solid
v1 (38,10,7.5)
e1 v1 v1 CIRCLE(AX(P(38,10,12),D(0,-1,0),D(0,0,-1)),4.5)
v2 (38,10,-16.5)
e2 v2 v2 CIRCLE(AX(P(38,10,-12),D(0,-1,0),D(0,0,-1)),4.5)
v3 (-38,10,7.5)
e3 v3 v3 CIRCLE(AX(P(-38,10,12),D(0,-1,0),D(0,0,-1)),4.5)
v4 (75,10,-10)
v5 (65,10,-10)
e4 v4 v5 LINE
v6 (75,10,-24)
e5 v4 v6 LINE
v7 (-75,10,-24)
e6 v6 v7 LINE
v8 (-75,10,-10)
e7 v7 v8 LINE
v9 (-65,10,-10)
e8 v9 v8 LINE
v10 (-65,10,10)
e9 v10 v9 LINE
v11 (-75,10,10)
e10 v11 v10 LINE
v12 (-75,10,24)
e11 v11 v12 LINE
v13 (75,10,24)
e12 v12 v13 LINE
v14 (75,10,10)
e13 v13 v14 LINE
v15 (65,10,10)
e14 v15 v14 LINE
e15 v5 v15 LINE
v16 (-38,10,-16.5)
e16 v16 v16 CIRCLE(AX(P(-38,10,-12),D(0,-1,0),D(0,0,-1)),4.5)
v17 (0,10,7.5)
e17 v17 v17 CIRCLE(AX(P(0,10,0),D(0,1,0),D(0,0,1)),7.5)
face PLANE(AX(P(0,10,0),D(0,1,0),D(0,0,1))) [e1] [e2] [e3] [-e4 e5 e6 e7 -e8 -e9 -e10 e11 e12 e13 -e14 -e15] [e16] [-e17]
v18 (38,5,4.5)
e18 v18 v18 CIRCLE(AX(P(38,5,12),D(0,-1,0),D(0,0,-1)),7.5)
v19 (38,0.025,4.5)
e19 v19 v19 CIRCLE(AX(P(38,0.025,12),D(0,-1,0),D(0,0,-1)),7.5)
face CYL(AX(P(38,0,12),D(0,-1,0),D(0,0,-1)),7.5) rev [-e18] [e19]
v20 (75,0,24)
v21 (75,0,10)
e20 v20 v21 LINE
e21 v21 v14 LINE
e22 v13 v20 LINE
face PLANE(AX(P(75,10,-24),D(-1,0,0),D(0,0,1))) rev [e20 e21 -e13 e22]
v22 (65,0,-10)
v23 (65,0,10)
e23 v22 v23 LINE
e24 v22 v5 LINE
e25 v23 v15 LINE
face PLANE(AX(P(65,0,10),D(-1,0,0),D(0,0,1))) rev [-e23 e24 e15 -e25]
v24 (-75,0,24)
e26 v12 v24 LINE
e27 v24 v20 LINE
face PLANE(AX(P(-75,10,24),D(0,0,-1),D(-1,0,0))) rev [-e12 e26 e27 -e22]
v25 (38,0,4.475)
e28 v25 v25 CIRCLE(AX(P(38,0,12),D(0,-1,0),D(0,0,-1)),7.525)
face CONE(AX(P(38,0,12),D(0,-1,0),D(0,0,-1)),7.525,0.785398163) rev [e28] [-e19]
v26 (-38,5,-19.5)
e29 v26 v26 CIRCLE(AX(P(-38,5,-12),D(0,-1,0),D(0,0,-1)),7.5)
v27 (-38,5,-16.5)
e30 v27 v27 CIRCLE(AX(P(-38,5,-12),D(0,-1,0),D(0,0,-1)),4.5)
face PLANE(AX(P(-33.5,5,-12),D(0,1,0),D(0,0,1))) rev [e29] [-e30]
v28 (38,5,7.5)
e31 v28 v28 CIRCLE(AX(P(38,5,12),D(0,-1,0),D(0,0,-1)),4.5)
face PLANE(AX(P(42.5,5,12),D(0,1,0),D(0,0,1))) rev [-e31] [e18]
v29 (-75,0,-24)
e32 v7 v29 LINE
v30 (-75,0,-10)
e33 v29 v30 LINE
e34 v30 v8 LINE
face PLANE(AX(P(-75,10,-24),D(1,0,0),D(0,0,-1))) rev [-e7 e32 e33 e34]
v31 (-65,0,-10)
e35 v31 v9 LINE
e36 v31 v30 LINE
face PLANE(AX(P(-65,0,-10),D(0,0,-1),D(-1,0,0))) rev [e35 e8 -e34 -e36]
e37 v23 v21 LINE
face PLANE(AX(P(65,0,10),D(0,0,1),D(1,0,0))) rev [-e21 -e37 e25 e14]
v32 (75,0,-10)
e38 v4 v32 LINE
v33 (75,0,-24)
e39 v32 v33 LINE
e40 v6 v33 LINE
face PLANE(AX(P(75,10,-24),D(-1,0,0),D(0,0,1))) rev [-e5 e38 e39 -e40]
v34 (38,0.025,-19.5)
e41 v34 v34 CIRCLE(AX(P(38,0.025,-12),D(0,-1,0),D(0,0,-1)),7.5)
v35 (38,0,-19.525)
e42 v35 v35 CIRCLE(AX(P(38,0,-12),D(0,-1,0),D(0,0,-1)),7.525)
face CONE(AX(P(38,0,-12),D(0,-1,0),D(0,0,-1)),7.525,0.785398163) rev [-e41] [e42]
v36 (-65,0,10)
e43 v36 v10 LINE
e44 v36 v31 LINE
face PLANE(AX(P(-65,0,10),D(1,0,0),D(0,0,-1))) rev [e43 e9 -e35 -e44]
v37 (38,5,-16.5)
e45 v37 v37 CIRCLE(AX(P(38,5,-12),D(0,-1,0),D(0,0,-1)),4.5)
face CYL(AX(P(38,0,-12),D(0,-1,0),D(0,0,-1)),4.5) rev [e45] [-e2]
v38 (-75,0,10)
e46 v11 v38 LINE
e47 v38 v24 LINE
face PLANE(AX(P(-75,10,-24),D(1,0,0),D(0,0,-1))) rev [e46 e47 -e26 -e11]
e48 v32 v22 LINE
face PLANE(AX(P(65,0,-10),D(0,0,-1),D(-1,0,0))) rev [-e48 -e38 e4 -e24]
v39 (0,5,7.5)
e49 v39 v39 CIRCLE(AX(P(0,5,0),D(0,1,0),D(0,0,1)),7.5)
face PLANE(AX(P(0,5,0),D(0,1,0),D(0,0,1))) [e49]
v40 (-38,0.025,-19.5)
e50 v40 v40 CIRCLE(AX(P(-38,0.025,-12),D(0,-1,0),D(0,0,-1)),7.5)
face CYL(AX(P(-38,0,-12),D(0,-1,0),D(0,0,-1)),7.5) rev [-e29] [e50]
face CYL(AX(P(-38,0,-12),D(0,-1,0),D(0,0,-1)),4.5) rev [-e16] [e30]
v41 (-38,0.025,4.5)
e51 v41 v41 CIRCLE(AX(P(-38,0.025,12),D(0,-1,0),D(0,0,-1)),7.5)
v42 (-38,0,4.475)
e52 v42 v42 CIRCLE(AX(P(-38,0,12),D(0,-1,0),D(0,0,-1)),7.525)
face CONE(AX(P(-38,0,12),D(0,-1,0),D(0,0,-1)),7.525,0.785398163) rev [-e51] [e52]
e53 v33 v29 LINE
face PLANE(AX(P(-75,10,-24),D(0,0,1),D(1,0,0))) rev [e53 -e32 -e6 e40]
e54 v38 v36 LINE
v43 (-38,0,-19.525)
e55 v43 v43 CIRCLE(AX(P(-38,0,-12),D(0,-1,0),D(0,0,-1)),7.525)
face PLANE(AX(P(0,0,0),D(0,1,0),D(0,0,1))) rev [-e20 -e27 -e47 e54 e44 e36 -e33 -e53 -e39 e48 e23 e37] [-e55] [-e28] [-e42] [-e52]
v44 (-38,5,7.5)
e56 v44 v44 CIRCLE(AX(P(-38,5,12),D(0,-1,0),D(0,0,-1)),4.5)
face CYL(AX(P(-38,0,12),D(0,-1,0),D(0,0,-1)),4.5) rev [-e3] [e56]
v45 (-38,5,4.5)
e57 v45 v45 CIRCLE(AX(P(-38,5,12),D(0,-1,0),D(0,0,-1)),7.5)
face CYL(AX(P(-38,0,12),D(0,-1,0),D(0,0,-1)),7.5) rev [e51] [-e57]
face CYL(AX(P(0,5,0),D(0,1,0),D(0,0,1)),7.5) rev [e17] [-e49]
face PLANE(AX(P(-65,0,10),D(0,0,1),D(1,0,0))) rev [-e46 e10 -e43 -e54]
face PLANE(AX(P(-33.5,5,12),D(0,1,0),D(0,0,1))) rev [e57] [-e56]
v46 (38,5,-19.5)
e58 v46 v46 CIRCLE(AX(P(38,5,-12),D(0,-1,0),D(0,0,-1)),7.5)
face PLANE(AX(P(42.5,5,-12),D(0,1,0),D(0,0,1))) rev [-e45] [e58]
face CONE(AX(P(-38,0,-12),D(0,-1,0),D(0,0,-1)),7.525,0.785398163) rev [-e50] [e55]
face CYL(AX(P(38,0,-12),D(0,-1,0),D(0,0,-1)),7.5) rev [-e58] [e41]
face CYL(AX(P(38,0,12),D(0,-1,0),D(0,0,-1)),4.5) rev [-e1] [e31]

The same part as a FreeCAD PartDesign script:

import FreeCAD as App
import Part
import Sketcher

V = App.Vector
Q = App.Units.Quantity

doc = App.newDocument("Part")
params = doc.addObject("Spreadsheet::Sheet", "Params")
for row, (alias, value) in enumerate([
    ("sketch1_width", "150 mm"),
    ("sketch1_height", "48 mm"),
    ("pad1_length", "10 mm"),
    ("sketch2_width", "5 mm"),
    ("sketch2_height", "3 mm"),
    ("groove_angle", "360 deg"),
    ("linearpattern_pitch", "76 mm"),
    ("linearpattern2_pitch", "24 mm"),
    ("linearpattern3_pitch", "79.699435 mm"),
    ("sketch3_diameter", "15 mm"),
    ("pocket1_length", "5 mm"),
    ("sketch4_width", "20 mm"),
], start=1):
    params.set(f"A{row}", alias)
    params.set(f"B{row}", "=" + value)
    params.setAlias(f"B{row}", alias)

body = doc.addObject("PartDesign::Body", "Body")

# Sketch on XZ plane
sketch1 = body.newObject("Sketcher::SketchObject", "Sketch")
sketch1.AttachmentSupport = (doc.getObject("XZ_Plane"), [""])
sketch1.MapMode = "FlatFace"
sketch1.addGeometry(Part.LineSegment(V(-75, -24, 0), V(-75, 24, 0)), False)
sketch1.addGeometry(Part.LineSegment(V(-75, 24, 0), V(75, 24, 0)), False)
sketch1.addGeometry(Part.LineSegment(V(75, 24, 0), V(75, -24, 0)), False)
sketch1.addGeometry(Part.LineSegment(V(75, -24, 0), V(-75, -24, 0)), False)
sketch1.addConstraint(Sketcher.Constraint("Coincident", 0, 2, 1, 1))
sketch1.addConstraint(Sketcher.Constraint("Coincident", 1, 2, 2, 1))
sketch1.addConstraint(Sketcher.Constraint("Coincident", 2, 2, 3, 1))
sketch1.addConstraint(Sketcher.Constraint("Coincident", 3, 2, 0, 1))
sketch1.addConstraint(Sketcher.Constraint("Vertical", 0))
sketch1.addConstraint(Sketcher.Constraint("Horizontal", 1))
sketch1.addConstraint(Sketcher.Constraint("Vertical", 2))
sketch1.addConstraint(Sketcher.Constraint("Horizontal", 3))
sketch1.addConstraint(Sketcher.Constraint("Symmetric", 0, 2, 2, 2, -1, 1))
sketch1.addConstraint(Sketcher.Constraint("DistanceX", 1, 1, 1, 2, Q("150 mm")))
sketch1.addConstraint(Sketcher.Constraint("DistanceY", 0, 1, 0, 2, Q("48 mm")))
sketch1.setExpression("Constraints[9]", "Params.sketch1_width")
sketch1.setExpression("Constraints[10]", "Params.sketch1_height")
pad1 = body.newObject("PartDesign::Pad", "Pad")
pad1.Profile = sketch1
pad1.setExpression("Length", "Params.pad1_length")
pad1.Reversed = True

# Sketch on YZ plane
sketch2 = body.newObject("Sketcher::SketchObject", "Sketch001")
sketch2.AttachmentSupport = (doc.getObject("YZ_Plane"), [""])
sketch2.MapMode = "FlatFace"
sketch2.AttachmentOffset = App.Placement(V(0, 0, 38), App.Rotation())
sketch2.addGeometry(Part.LineSegment(V(12.704, 12, 0), V(0, 12, 0)), False)
sketch2.addGeometry(Part.LineSegment(V(0, 12, 0), V(0, 4.475, 0)), False)
sketch2.addGeometry(Part.LineSegment(V(0, 4.475, 0), V(0.025, 4.5, 0)), False)
sketch2.addGeometry(Part.LineSegment(V(0.025, 4.5, 0), V(5, 4.5, 0)), False)
sketch2.addGeometry(Part.LineSegment(V(5, 4.5, 0), V(5, 7.5, 0)), False)
sketch2.addGeometry(Part.LineSegment(V(5, 7.5, 0), V(10, 7.5, 0)), False)
sketch2.addGeometry(Part.LineSegment(V(10, 7.5, 0), V(12.704, 12, 0)), False)
sketch2.addGeometry(Part.LineSegment(V(0, 12, 0), V(12.704, 12, 0)), True)  # axis
sketch2.addConstraint(Sketcher.Constraint("Coincident", 0, 2, 1, 1))
sketch2.addConstraint(Sketcher.Constraint("Coincident", 1, 2, 2, 1))
sketch2.addConstraint(Sketcher.Constraint("Coincident", 2, 2, 3, 1))
sketch2.addConstraint(Sketcher.Constraint("Coincident", 3, 2, 4, 1))
sketch2.addConstraint(Sketcher.Constraint("Coincident", 4, 2, 5, 1))
sketch2.addConstraint(Sketcher.Constraint("Coincident", 5, 2, 6, 1))
sketch2.addConstraint(Sketcher.Constraint("Coincident", 6, 2, 0, 1))
sketch2.addConstraint(Sketcher.Constraint("Horizontal", 0))
sketch2.addConstraint(Sketcher.Constraint("Vertical", 1))
sketch2.addConstraint(Sketcher.Constraint("Horizontal", 3))
sketch2.addConstraint(Sketcher.Constraint("Vertical", 4))
sketch2.addConstraint(Sketcher.Constraint("Horizontal", 5))
sketch2.addConstraint(Sketcher.Constraint("Horizontal", 7))
sketch2.addConstraint(Sketcher.Constraint("Coincident", 7, 1, 0, 2))
sketch2.addConstraint(Sketcher.Constraint("PointOnObject", 0, 2, -2))
sketch2.addConstraint(Sketcher.Constraint("Equal", 0, 7))
sketch2.addConstraint(Sketcher.Constraint("DistanceX", 5, 1, 5, 2, Q("5 mm")))
sketch2.addConstraint(Sketcher.Constraint("DistanceY", 4, 1, 4, 2, Q("3 mm")))
sketch2.addConstraint(Sketcher.Constraint("Angle", 2, Q("45 deg")))
sketch2.addConstraint(Sketcher.Constraint("Angle", 6, Q("59 deg")))
sketch2.addConstraint(Sketcher.Constraint("DistanceY", -1, 1, 0, 2, Q("12 mm")))
sketch2.addConstraint(Sketcher.Constraint("DistanceX", -1, 1, 3, 2, Q("5 mm")))
sketch2.addConstraint(Sketcher.Constraint("DistanceY", -1, 1, 2, 2, Q("4.5 mm")))
sketch2.addConstraint(Sketcher.Constraint("DistanceX", 3, 1, 3, 2, Q("4.975 mm")))
sketch2.setExpression("Constraints[16]", "Params.sketch2_width")
sketch2.setExpression("Constraints[17]", "Params.sketch2_height")
groove = body.newObject("PartDesign::Groove", "Groove")
groove.Profile = sketch2
groove.ReferenceAxis = (sketch2, ["Axis0"])
groove.setExpression("Angle", "Params.groove_angle")
doc.recompute()

linearpattern = body.newObject("PartDesign::LinearPattern", "LinearPattern")
linearpattern.Originals = [groove]
linearpattern.Direction = (doc.getObject("X_Axis"), [""])
linearpattern.Mode = "offset"
linearpattern.setExpression("Offset", "Params.linearpattern_pitch")
linearpattern.Occurrences = 2
linearpattern.Reversed = True
body.Tip = linearpattern
doc.recompute()

linearpattern2 = body.newObject("PartDesign::LinearPattern", "LinearPattern001")
linearpattern2.Originals = [groove]
linearpattern2.Direction = (doc.getObject("Z_Axis"), [""])
linearpattern2.Mode = "offset"
linearpattern2.setExpression("Offset", "Params.linearpattern2_pitch")
linearpattern2.Occurrences = 2
linearpattern2.Reversed = True
body.Tip = linearpattern2
doc.recompute()

datumline = body.newObject("PartDesign::Line", "DatumLine")
datumline.Placement = App.Placement(V(0, 0, 0), App.Rotation(V(0, 0, 1), V(-0.953582665, 0, -0.301131368)))
linearpattern3 = body.newObject("PartDesign::LinearPattern", "LinearPattern002")
linearpattern3.Originals = [groove]
linearpattern3.Direction = (datumline, [""])
linearpattern3.Mode = "offset"
linearpattern3.setExpression("Offset", "Params.linearpattern3_pitch")
linearpattern3.Occurrences = 2
body.Tip = linearpattern3

# Sketch on XZ plane
sketch3 = body.newObject("Sketcher::SketchObject", "Sketch002")
sketch3.AttachmentSupport = (doc.getObject("XZ_Plane"), [""])
sketch3.MapMode = "FlatFace"
sketch3.AttachmentOffset = App.Placement(V(0, 0, -10), App.Rotation())
sketch3.addGeometry(Part.Circle(V(0, 0, 0), V(0, 0, 1), 8), False)
sketch3.addConstraint(Sketcher.Constraint("Coincident", 0, 3, -1, 1))
sketch3.addConstraint(Sketcher.Constraint("Diameter", 0, Q("15 mm")))
sketch3.setExpression("Constraints[1]", "Params.sketch3_diameter")
pocket1 = body.newObject("PartDesign::Pocket", "Pocket")
pocket1.Profile = sketch3
pocket1.setExpression("Length", "Params.pocket1_length")
pocket1.Reversed = True

# Sketch on XZ plane
sketch4 = body.newObject("Sketcher::SketchObject", "Sketch003")
sketch4.AttachmentSupport = (doc.getObject("XZ_Plane"), [""])
sketch4.MapMode = "FlatFace"
sketch4.AttachmentOffset = App.Placement(V(0, 0, -10), App.Rotation())
sketch4.addGeometry(Part.LineSegment(V(65, -10, 0), V(65, 10, 0)), False)
sketch4.addGeometry(Part.LineSegment(V(65, 10, 0), V(85, 10, 0)), False)
sketch4.addGeometry(Part.LineSegment(V(85, 10, 0), V(85, -10, 0)), False)
sketch4.addGeometry(Part.LineSegment(V(85, -10, 0), V(65, -10, 0)), False)
sketch4.addGeometry(Part.LineSegment(V(-85, -10, 0), V(-85, 10, 0)), False)
sketch4.addGeometry(Part.LineSegment(V(-85, 10, 0), V(-65, 10, 0)), False)
sketch4.addGeometry(Part.LineSegment(V(-65, 10, 0), V(-65, -10, 0)), False)
sketch4.addGeometry(Part.LineSegment(V(-65, -10, 0), V(-85, -10, 0)), False)
sketch4.addConstraint(Sketcher.Constraint("Coincident", 0, 2, 1, 1))
sketch4.addConstraint(Sketcher.Constraint("Coincident", 1, 2, 2, 1))
sketch4.addConstraint(Sketcher.Constraint("Coincident", 2, 2, 3, 1))
sketch4.addConstraint(Sketcher.Constraint("Coincident", 3, 2, 0, 1))
sketch4.addConstraint(Sketcher.Constraint("Coincident", 4, 2, 5, 1))
sketch4.addConstraint(Sketcher.Constraint("Coincident", 5, 2, 6, 1))
sketch4.addConstraint(Sketcher.Constraint("Coincident", 6, 2, 7, 1))
sketch4.addConstraint(Sketcher.Constraint("Coincident", 7, 2, 4, 1))
sketch4.addConstraint(Sketcher.Constraint("Vertical", 0))
sketch4.addConstraint(Sketcher.Constraint("Horizontal", 1))
sketch4.addConstraint(Sketcher.Constraint("Vertical", 2))
sketch4.addConstraint(Sketcher.Constraint("Horizontal", 3))
sketch4.addConstraint(Sketcher.Constraint("Vertical", 4))
sketch4.addConstraint(Sketcher.Constraint("Horizontal", 5))
sketch4.addConstraint(Sketcher.Constraint("Vertical", 6))
sketch4.addConstraint(Sketcher.Constraint("Horizontal", 7))
sketch4.addConstraint(Sketcher.Constraint("Symmetric", 2, 2, 4, 2, -1, 1))
sketch4.addConstraint(Sketcher.Constraint("Symmetric", 0, 2, 6, 2, -1, 1))
sketch4.addConstraint(Sketcher.Constraint("Horizontal", 1, 2, 4, 2))
sketch4.addConstraint(Sketcher.Constraint("Equal", 7, 0))
sketch4.addConstraint(Sketcher.Constraint("DistanceX", 1, 1, 1, 2, Q("20 mm")))
sketch4.addConstraint(Sketcher.Constraint("DistanceX", -1, 1, 0, 2, Q("65 mm")))
sketch4.setExpression("Constraints[20]", "Params.sketch4_width")
pocket2 = body.newObject("PartDesign::Pocket", "Pocket001")
pocket2.Profile = sketch4
pocket2.Type = "ThroughAll"
pocket2.Reversed = True

doc.recompute()
